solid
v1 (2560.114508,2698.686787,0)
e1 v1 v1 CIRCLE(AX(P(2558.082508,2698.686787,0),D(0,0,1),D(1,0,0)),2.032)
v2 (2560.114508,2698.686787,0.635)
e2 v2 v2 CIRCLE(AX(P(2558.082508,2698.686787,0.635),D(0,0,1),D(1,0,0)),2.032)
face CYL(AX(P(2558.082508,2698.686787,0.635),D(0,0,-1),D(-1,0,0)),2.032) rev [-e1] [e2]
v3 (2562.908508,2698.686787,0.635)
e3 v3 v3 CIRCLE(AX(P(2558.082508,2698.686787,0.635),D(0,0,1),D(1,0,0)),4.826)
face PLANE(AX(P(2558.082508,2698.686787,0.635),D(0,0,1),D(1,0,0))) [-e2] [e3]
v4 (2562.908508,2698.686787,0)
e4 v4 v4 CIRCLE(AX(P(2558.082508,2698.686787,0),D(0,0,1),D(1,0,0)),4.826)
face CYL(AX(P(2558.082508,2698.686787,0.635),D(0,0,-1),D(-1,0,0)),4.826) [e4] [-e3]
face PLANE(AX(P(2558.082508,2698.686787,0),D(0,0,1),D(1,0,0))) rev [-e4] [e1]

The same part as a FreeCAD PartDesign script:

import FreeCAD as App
import Part
import Sketcher
from FreeCAD import Vector
Q = App.Units.Quantity

doc = App.newDocument("Part")
body = doc.addObject("PartDesign::Body", "Body")

# Sketch on XY plane
sketch1 = body.newObject("Sketcher::SketchObject", "Sketch")
sketch1.AttachmentSupport = (doc.getObject("XY_Plane"), [""])
sketch1.MapMode = "FlatFace"
sketch1.addGeometry([
    Part.Circle(Vector(2558.082508, 2698.686787, 0), Vector(0, 0, 1), 4.826),
    Part.Circle(Vector(2558.082508, 2698.686787, 0), Vector(0, 0, 1), 2.032),
], False)
sketch1.addConstraint([
    Sketcher.Constraint("Coincident", 1, 3, 0, 3),
    Sketcher.Constraint("Diameter", 0, Q("0.38 in")),
    Sketcher.Constraint("Diameter", 1, Q("0.16 in")),
    Sketcher.Constraint("DistanceX", -1, 1, 0, 3, 2558.082508),
    Sketcher.Constraint("DistanceY", -1, 1, 0, 3, 2698.686787),
])
pad1 = body.newObject("PartDesign::Pad", "Pad")
pad1.Profile = sketch1
pad1.Length = Q("0.025 in")

doc.recompute()
